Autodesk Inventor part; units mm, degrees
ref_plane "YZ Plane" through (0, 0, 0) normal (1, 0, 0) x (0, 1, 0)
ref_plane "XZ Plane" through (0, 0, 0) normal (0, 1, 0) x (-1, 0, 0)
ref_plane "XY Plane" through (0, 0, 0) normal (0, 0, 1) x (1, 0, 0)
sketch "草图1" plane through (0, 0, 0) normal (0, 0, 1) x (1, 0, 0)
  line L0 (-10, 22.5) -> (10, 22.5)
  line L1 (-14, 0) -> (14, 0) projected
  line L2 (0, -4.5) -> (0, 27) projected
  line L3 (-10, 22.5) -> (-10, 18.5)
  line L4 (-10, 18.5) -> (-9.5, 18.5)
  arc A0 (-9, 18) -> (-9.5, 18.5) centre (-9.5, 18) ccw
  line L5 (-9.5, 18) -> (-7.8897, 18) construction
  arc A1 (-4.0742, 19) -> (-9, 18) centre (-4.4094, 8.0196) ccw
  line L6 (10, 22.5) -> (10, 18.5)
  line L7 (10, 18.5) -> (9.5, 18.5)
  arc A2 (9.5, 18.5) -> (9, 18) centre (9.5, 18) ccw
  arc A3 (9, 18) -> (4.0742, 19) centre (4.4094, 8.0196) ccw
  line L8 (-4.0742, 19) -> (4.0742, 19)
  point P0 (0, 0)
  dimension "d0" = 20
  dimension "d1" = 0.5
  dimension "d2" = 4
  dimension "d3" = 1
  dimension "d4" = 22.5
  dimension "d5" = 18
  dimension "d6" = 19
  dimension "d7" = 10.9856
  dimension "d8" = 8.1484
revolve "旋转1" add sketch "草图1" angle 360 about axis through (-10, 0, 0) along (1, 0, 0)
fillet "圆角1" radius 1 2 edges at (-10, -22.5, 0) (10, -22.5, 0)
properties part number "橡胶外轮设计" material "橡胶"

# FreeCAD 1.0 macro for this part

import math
import FreeCAD as App
import Part
import Sketcher
Q = App.Units.Quantity


def edges_at(feature, points):
    """Names of the edges that pass closest to the given points."""
    edges = feature.Shape.Edges
    near = lambda p: min(range(len(edges)), key=lambda i: edges[i].distToShape(Part.Vertex(*p))[0])
    return sorted({f"Edge{near(p) + 1}" for p in points})

doc = App.newDocument("Part")
body = doc.addObject("PartDesign::Body", "Body")

# Sketch on XY plane
sketch1 = body.newObject("Sketcher::SketchObject", "Sketch")
sketch1.AttachmentSupport = (doc.getObject("XY_Plane"), [""])
sketch1.MapMode = "FlatFace"
sketch1.addGeometry([
    Part.LineSegment(App.Vector(-10, 22.5, 0), App.Vector(-10, 18.5, 0)),  # 0
    Part.LineSegment(App.Vector(-10, 18.5, 0), App.Vector(-9.5, 18.5, 0)),  # 1
    Part.ArcOfCircle(Part.Circle(App.Vector(-9.5, 18, 0), App.Vector(0, 0, 1), 0.5), math.radians(0), math.radians(90)),  # 2
    Part.ArcOfCircle(Part.Circle(App.Vector(-4.4, 8, 0), App.Vector(0, 0, 1), 11), math.radians(88), math.radians(115)),  # 3
    Part.LineSegment(App.Vector(-4.1, 19, 0), App.Vector(4.1, 19, 0)),  # 4
    Part.ArcOfCircle(Part.Circle(App.Vector(4.4, 8, 0), App.Vector(0, 0, 1), 11), math.radians(65), math.radians(92)),  # 5
    Part.ArcOfCircle(Part.Circle(App.Vector(9.5, 18, 0), App.Vector(0, 0, 1), 0.5), math.radians(90), math.radians(180)),  # 6
    Part.LineSegment(App.Vector(9.5, 18.5, 0), App.Vector(10, 18.5, 0)),  # 7
    Part.LineSegment(App.Vector(10, 18.5, 0), App.Vector(10, 22.5, 0)),  # 8
    Part.LineSegment(App.Vector(10, 22.5, 0), App.Vector(-10, 22.5, 0)),  # 9
], False)
sketch1.addConstraint([
    Sketcher.Constraint("Coincident", 0, 2, 1, 1),
    Sketcher.Constraint("Tangent", 1, 2, 2, 2),
    Sketcher.Constraint("Coincident", 2, 1, 3, 2),
    Sketcher.Constraint("Coincident", 3, 1, 4, 1),
    Sketcher.Constraint("Coincident", 4, 2, 5, 2),
    Sketcher.Constraint("Coincident", 5, 1, 6, 2),
    Sketcher.Constraint("Tangent", 6, 1, 7, 1),
    Sketcher.Constraint("Coincident", 7, 2, 8, 1),
    Sketcher.Constraint("Coincident", 8, 2, 9, 1),
    Sketcher.Constraint("Coincident", 9, 2, 0, 1),
    Sketcher.Constraint("Vertical", 0),
    Sketcher.Constraint("Horizontal", 1),
    Sketcher.Constraint("Horizontal", 4),
    Sketcher.Constraint("Horizontal", 7),
    Sketcher.Constraint("Vertical", 8),
    Sketcher.Constraint("Horizontal", 9),
    Sketcher.Constraint("Equal", 3, 5),
    Sketcher.Constraint("Equal", 2, 6),
    Sketcher.Constraint("Symmetric", 3, 3, 5, 3, -2),
    Sketcher.Constraint("Symmetric", 2, 3, 6, 3, -2),
    Sketcher.Constraint("Horizontal", 6, 3, 2, 1),
    Sketcher.Constraint("Equal", 1, 7),
    Sketcher.Constraint("Radius", 2, Q("0.5 mm")),
    Sketcher.Constraint("DistanceX", 9, 2, 9, 1, Q("20 mm")),
    Sketcher.Constraint("DistanceY", 0, 2, 0, 1, Q("4 mm")),
    Sketcher.Constraint("DistanceX", 1, 1, 1, 2, Q("0.5 mm")),
    Sketcher.Constraint("DistanceY", -1, 1, 2, 3, Q("18 mm")),
    Sketcher.Constraint("DistanceY", -1, 1, 3, 1, Q("19 mm")),
    Sketcher.Constraint("Radius", 3, Q("10.9855 mm")),
    Sketcher.Constraint("DistanceX", 4, 1, 4, 2, Q("8.1484 mm")),
])
revolution = body.newObject("PartDesign::Revolution", "Revolution")
revolution.Profile = sketch1
revolution.ReferenceAxis = (sketch1, ["H_Axis"])
revolution.Angle = 360
doc.recompute()

fillet = body.newObject("PartDesign::Fillet", "Fillet")
fillet.Base = (revolution, edges_at(revolution, [(-10, -22.5, 0), (10, -22.5, 0)]))
fillet.Radius = 1

doc.recompute()
